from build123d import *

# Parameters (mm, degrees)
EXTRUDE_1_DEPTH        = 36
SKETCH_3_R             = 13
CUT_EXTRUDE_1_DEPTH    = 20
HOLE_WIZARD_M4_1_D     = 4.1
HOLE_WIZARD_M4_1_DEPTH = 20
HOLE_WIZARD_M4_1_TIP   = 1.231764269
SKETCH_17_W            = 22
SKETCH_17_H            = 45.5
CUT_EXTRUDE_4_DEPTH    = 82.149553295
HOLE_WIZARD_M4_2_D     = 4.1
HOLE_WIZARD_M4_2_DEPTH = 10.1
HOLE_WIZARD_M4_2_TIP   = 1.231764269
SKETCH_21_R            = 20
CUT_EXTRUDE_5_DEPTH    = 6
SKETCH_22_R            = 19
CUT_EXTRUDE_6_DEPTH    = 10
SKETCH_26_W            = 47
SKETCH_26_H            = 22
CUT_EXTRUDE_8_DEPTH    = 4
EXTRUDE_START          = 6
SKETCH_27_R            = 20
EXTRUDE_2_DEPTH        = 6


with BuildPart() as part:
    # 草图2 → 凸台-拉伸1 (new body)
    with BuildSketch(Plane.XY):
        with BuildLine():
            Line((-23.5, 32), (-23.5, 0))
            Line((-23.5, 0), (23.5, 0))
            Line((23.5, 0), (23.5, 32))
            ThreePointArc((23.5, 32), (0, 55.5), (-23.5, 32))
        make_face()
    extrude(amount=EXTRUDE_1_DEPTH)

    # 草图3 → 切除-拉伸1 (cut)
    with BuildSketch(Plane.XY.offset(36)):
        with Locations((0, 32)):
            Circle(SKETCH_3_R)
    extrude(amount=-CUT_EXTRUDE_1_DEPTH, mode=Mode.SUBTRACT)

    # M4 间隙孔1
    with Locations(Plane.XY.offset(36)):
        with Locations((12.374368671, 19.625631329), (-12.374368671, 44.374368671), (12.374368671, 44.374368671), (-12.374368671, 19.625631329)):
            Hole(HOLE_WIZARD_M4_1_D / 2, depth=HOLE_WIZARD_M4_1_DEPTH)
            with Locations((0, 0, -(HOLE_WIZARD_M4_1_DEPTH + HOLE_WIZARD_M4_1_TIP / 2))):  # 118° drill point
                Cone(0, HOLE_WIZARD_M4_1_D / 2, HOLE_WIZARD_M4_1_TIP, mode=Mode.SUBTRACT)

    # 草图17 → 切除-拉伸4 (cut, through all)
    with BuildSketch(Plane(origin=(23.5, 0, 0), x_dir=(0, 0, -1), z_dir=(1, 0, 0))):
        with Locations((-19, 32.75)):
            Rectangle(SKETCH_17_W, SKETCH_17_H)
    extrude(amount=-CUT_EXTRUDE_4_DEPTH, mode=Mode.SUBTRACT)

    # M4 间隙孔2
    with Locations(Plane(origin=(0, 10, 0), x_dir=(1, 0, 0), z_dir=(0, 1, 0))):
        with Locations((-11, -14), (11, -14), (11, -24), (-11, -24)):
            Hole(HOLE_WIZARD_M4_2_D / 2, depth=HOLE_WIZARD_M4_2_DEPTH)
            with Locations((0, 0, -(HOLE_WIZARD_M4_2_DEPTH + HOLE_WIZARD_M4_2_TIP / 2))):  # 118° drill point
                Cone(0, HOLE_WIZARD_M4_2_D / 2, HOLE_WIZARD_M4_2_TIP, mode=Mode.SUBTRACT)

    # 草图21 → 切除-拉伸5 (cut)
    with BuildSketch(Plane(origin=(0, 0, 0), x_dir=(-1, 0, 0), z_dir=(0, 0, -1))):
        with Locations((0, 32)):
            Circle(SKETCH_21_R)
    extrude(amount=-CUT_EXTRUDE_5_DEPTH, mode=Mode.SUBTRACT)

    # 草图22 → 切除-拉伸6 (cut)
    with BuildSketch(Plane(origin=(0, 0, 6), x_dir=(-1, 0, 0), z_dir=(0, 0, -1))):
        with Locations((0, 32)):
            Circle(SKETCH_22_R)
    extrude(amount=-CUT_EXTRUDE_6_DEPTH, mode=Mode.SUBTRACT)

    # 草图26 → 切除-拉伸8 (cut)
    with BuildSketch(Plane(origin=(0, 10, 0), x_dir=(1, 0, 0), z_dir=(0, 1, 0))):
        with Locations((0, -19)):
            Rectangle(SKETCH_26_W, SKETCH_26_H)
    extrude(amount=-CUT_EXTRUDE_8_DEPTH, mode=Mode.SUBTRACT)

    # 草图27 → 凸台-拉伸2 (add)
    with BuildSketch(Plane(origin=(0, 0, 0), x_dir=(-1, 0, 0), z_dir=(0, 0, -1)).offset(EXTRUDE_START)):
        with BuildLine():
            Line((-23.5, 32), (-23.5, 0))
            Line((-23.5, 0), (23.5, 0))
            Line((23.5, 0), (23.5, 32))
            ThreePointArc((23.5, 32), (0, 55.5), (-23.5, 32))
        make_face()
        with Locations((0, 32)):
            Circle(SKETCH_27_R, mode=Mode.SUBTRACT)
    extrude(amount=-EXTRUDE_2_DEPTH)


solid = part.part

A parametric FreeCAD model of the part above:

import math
import FreeCAD as App
import Part
import Sketcher
from FreeCAD import Vector


def add_polygon(sketch, points):
    """Adds a closed chain of lines whose ends are joined by coincident constraints."""
    first, n = sketch.GeometryCount, len(points)
    for a, b in zip(points, points[1:] + points[:1]):
        sketch.addGeometry(Part.LineSegment(App.Vector(*a, 0), App.Vector(*b, 0)), False)
    for i in range(n):
        sketch.addConstraint(Sketcher.Constraint("Coincident", first + i, 2, first + (i + 1) % n, 1))

doc = App.newDocument("Part")
body = doc.addObject("PartDesign::Body", "Body")

# Sketch on XY plane
sketch1 = body.newObject("Sketcher::SketchObject", "Sketch")
sketch1.AttachmentSupport = (doc.getObject("XY_Plane"), [""])
sketch1.MapMode = "FlatFace"
sketch1.addGeometry([
    Part.LineSegment(Vector(-24, 32, 0), Vector(-24, 0, 0)),
    Part.LineSegment(Vector(-24, 0, 0), Vector(24, 0, 0)),
    Part.LineSegment(Vector(24, 0, 0), Vector(24, 32, 0)),
    Part.ArcOfCircle(Part.Circle(Vector(0, 32, 0), Vector(0, 0, 1), 24), math.radians(0), math.radians(180)),
], False)
sketch1.addConstraint([
    Sketcher.Constraint("Coincident", 0, 2, 1, 1),
    Sketcher.Constraint("Coincident", 1, 2, 2, 1),
    Sketcher.Constraint("Tangent", 2, 2, 3, 1),
    Sketcher.Constraint("Tangent", 3, 2, 0, 1),
    Sketcher.Constraint("Vertical", 0),
    Sketcher.Constraint("Horizontal", 1),
    Sketcher.Constraint("Vertical", 2),
    Sketcher.Constraint("Symmetric", 0, 2, 1, 2, -1, 1),
    Sketcher.Constraint("Radius", 3, 23.5),
    Sketcher.Constraint("DistanceY", 0, 2, 0, 1, 32.0),
])
pad1 = body.newObject("PartDesign::Pad", "Pad")
pad1.Profile = sketch1
pad1.Length = 36

# Sketch on XY plane
sketch2 = body.newObject("Sketcher::SketchObject", "Sketch001")
sketch2.AttachmentSupport = (doc.getObject("XY_Plane"), [""])
sketch2.MapMode = "FlatFace"
sketch2.AttachmentOffset = App.Placement(Vector(0, 0, 36), App.Rotation())
sketch2.addGeometry(Part.Circle(Vector(0, 32, 0), Vector(0, 0, 1), 13), False)
sketch2.addConstraint([
    Sketcher.Constraint("PointOnObject", 0, 3, -2),
    Sketcher.Constraint("Diameter", 0, 26.0),
    Sketcher.Constraint("DistanceY", -1, 1, 0, 3, 32.0),
])
pocket1 = body.newObject("PartDesign::Pocket", "Pocket")
pocket1.Profile = sketch2
pocket1.Length = 20

# Sketch on XY plane
sketch3 = body.newObject("Sketcher::SketchObject", "Sketch002")
sketch3.AttachmentSupport = (doc.getObject("XY_Plane"), [""])
sketch3.MapMode = "FlatFace"
sketch3.AttachmentOffset = App.Placement(Vector(0, 0, 36), App.Rotation())
sketch3.addGeometry([
    Part.Circle(Vector(12.4, 19.6, 0), Vector(0, 0, 1), 2),
    Part.Circle(Vector(-12.4, 44.4, 0), Vector(0, 0, 1), 2),
    Part.Circle(Vector(12.4, 44.4, 0), Vector(0, 0, 1), 2),
    Part.Circle(Vector(-12.4, 19.6, 0), Vector(0, 0, 1), 2),
], False)
sketch3.addConstraint([
    Sketcher.Constraint("Equal", 0, 1),
    Sketcher.Constraint("Equal", 1, 2),
    Sketcher.Constraint("Equal", 2, 3),
    Sketcher.Constraint("Symmetric", 1, 3, 2, 3, -2),
    Sketcher.Constraint("Symmetric", 0, 3, 3, 3, -2),
    Sketcher.Constraint("Vertical", 0, 3, 2, 3),
    Sketcher.Constraint("Diameter", 0, 4.1),
    Sketcher.Constraint("DistanceX", -1, 1, 0, 3, 12.374369),
    Sketcher.Constraint("DistanceY", -1, 1, 0, 3, 19.625631),
    Sketcher.Constraint("DistanceY", -1, 1, 1, 3, 44.374369),
])
doc.recompute()
hole = body.newObject("PartDesign::Hole", "Hole")
hole.Profile = sketch3
hole.ThreadType = "None"
hole.Diameter = 4.1
hole.DepthType = "Dimension"
hole.Depth = 20
hole.DrillPoint = "Angled"
hole.DrillPointAngle = 118

# Sketch on YZ plane
sketch4 = body.newObject("Sketcher::SketchObject", "Sketch003")
sketch4.AttachmentSupport = (doc.getObject("YZ_Plane"), [""])
sketch4.MapMode = "FlatFace"
sketch4.AttachmentOffset = App.Placement(Vector(0, 0, 23.5), App.Rotation())
add_polygon(sketch4, [(56, 30), (10, 30), (10, 8), (56, 8)])  # lines 0-3
sketch4.addConstraint([
    Sketcher.Constraint("Horizontal", 0),
    Sketcher.Constraint("Vertical", 1),
    Sketcher.Constraint("Horizontal", 2),
    Sketcher.Constraint("Vertical", 3),
    Sketcher.Constraint("DistanceY", 1, 2, 1, 1, 22.0),
    Sketcher.Constraint("DistanceX", 0, 2, 0, 1, 45.5),
    Sketcher.Constraint("DistanceX", -1, 1, 0, 2, 10.0),
    Sketcher.Constraint("DistanceY", -1, 1, 0, 2, 30.0),
])
pocket2 = body.newObject("PartDesign::Pocket", "Pocket001")
pocket2.Profile = sketch4
pocket2.Type = "ThroughAll"

# Sketch on XZ plane
sketch5 = body.newObject("Sketcher::SketchObject", "Sketch004")
sketch5.AttachmentSupport = (doc.getObject("XZ_Plane"), [""])
sketch5.MapMode = "FlatFace"
sketch5.AttachmentOffset = App.Placement(Vector(0, 0, -10), App.Rotation())
sketch5.addGeometry([
    Part.Circle(Vector(-11, 14, 0), Vector(0, 0, 1), 2),
    Part.Circle(Vector(11, 14, 0), Vector(0, 0, 1), 2),
    Part.Circle(Vector(11, 24, 0), Vector(0, 0, 1), 2),
    Part.Circle(Vector(-11, 24, 0), Vector(0, 0, 1), 2),
], False)
sketch5.addConstraint([
    Sketcher.Constraint("Equal", 0, 1),
    Sketcher.Constraint("Equal", 1, 2),
    Sketcher.Constraint("Equal", 2, 3),
    Sketcher.Constraint("Symmetric", 0, 3, 1, 3, -2),
    Sketcher.Constraint("Symmetric", 2, 3, 3, 3, -2),
    Sketcher.Constraint("Vertical", 1, 3, 2, 3),
    Sketcher.Constraint("Diameter", 0, 4.1),
    Sketcher.Constraint("DistanceX", 0, 3, -1, 1, 11.0),
    Sketcher.Constraint("DistanceY", -1, 1, 0, 3, 14.0),
    Sketcher.Constraint("DistanceY", -1, 1, 2, 3, 24.0),
])
doc.recompute()
hole2 = body.newObject("PartDesign::Hole", "Hole001")
hole2.Profile = sketch5
hole2.ThreadType = "None"
hole2.Diameter = 4.1
hole2.DepthType = "Dimension"
hole2.Depth = 10.1
hole2.DrillPoint = "Angled"
hole2.DrillPointAngle = 118
hole2.Reversed = True

# Sketch on XY plane
sketch6 = body.newObject("Sketcher::SketchObject", "Sketch005")
sketch6.AttachmentSupport = (doc.getObject("XY_Plane"), [""])
sketch6.MapMode = "FlatFace"
sketch6.addGeometry(Part.Circle(Vector(0, 32, 0), Vector(0, 0, 1), 20), False)
sketch6.addConstraint([
    Sketcher.Constraint("PointOnObject", 0, 3, -2),
    Sketcher.Constraint("Diameter", 0, 40.0),
    Sketcher.Constraint("DistanceY", -1, 1, 0, 3, 32.0),
])
pocket3 = body.newObject("PartDesign::Pocket", "Pocket002")
pocket3.Profile = sketch6
pocket3.Length = 6
pocket3.Reversed = True

# Sketch on XY plane
sketch7 = body.newObject("Sketcher::SketchObject", "Sketch006")
sketch7.AttachmentSupport = (doc.getObject("XY_Plane"), [""])
sketch7.MapMode = "FlatFace"
sketch7.AttachmentOffset = App.Placement(Vector(0, 0, 6), App.Rotation())
sketch7.addGeometry(Part.Circle(Vector(0, 32, 0), Vector(0, 0, 1), 19), False)
sketch7.addConstraint([
    Sketcher.Constraint("PointOnObject", 0, 3, -2),
    Sketcher.Constraint("Diameter", 0, 38.0),
    Sketcher.Constraint("DistanceY", -1, 1, 0, 3, 32.0),
])
pocket4 = body.newObject("PartDesign::Pocket", "Pocket003")
pocket4.Profile = sketch7
pocket4.Length = 10
pocket4.Reversed = True

# Sketch on XZ plane
sketch8 = body.newObject("Sketcher::SketchObject", "Sketch007")
sketch8.AttachmentSupport = (doc.getObject("XZ_Plane"), [""])
sketch8.MapMode = "FlatFace"
sketch8.AttachmentOffset = App.Placement(Vector(0, 0, -10), App.Rotation())
add_polygon(sketch8, [(-24, 8), (-24, 30), (24, 30), (24, 8)])  # lines 0-3
sketch8.addConstraint([
    Sketcher.Constraint("Vertical", 0),
    Sketcher.Constraint("Horizontal", 1),
    Sketcher.Constraint("Vertical", 2),
    Sketcher.Constraint("Horizontal", 3),
    Sketcher.Constraint("DistanceX", 1, 1, 1, 2, 47.0),
    Sketcher.Constraint("DistanceY", 0, 1, 0, 2, 22.0),
    Sketcher.Constraint("DistanceY", -1, 1, 0, 2, 30.0),
    Sketcher.Constraint("DistanceX", 0, 2, -1, 1, 23.5),
])
pocket5 = body.newObject("PartDesign::Pocket", "Pocket004")
pocket5.Profile = sketch8
pocket5.Length = 4
pocket5.Reversed = True

# Sketch on XY plane
sketch9 = body.newObject("Sketcher::SketchObject", "Sketch008")
sketch9.AttachmentSupport = (doc.getObject("XY_Plane"), [""])
sketch9.MapMode = "FlatFace"
sketch9.AttachmentOffset = App.Placement(Vector(0, 0, -6), App.Rotation())
sketch9.addGeometry([
    Part.LineSegment(Vector(24, 32, 0), Vector(24, 0, 0)),  # 0
    Part.LineSegment(Vector(24, 0, 0), Vector(-24, 0, 0)),  # 1
    Part.LineSegment(Vector(-24, 0, 0), Vector(-24, 32, 0)),  # 2
    Part.ArcOfCircle(Part.Circle(Vector(0, 32, 0), Vector(0, 0, 1), 24), math.radians(0), math.radians(180)),  # 3
    Part.Circle(Vector(0, 32, 0), Vector(0, 0, 1), 20),  # 4
], False)
sketch9.addConstraint([
    Sketcher.Constraint("Coincident", 0, 2, 1, 1),
    Sketcher.Constraint("Coincident", 1, 2, 2, 1),
    Sketcher.Constraint("Tangent", 2, 2, 3, 2),
    Sketcher.Constraint("Tangent", 3, 1, 0, 1),
    Sketcher.Constraint("Vertical", 0),
    Sketcher.Constraint("Horizontal", 1),
    Sketcher.Constraint("Vertical", 2),
    Sketcher.Constraint("Coincident", 4, 3, 3, 3),
    Sketcher.Constraint("Symmetric", 0, 2, 1, 2, -1, 1),
    Sketcher.Constraint("Diameter", 4, 40.0),
    Sketcher.Constraint("Radius", 3, 23.5),
    Sketcher.Constraint("DistanceY", 0, 2, 0, 1, 32.0),
])
pad2 = body.newObject("PartDesign::Pad", "Pad001")
pad2.Profile = sketch9
pad2.Length = 6

doc.recompute()
